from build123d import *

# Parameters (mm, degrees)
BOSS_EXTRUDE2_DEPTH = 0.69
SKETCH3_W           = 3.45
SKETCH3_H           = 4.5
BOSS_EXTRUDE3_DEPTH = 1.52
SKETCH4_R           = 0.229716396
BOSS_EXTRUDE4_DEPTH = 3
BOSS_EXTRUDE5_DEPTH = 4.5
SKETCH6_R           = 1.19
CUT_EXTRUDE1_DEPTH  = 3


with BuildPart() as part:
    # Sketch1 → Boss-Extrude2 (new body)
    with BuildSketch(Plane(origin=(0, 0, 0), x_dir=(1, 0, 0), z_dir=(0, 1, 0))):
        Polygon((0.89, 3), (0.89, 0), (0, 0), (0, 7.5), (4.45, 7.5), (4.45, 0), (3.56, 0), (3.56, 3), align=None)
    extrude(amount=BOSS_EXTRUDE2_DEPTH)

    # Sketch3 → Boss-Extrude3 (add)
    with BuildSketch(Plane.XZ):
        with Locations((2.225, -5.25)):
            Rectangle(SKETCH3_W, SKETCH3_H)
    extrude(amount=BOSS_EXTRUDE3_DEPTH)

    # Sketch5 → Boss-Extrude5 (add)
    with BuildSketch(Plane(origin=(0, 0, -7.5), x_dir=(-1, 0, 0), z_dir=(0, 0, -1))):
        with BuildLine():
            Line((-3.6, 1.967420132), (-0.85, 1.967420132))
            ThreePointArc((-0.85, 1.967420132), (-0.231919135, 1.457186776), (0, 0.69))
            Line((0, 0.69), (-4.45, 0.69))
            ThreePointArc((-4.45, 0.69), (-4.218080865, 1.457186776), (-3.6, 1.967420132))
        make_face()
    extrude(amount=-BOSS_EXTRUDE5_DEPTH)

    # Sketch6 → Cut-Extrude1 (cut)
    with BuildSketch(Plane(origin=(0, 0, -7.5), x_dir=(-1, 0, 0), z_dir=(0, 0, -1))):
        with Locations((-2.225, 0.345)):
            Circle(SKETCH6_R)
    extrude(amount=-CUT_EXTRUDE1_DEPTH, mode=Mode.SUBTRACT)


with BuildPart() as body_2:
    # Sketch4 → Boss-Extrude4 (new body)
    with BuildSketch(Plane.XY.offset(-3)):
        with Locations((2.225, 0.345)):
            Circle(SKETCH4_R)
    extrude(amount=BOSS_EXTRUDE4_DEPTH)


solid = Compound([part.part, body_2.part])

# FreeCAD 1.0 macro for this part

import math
import FreeCAD as App
import Part
import Sketcher
Q = App.Units.Quantity

doc = App.newDocument("Part")
body = doc.addObject("PartDesign::Body", "Body")

# Sketch on XZ plane
sketch1 = body.newObject("Sketcher::SketchObject", "Sketch")
sketch1.AttachmentSupport = (doc.getObject("XZ_Plane"), [""])
sketch1.MapMode = "FlatFace"
sketch1.addGeometry(Part.LineSegment(App.Vector(0.9, 0, 0), App.Vector(0.9, -3, 0)), False)
sketch1.addGeometry(Part.LineSegment(App.Vector(0.9, -3, 0), App.Vector(3.6, -3, 0)), False)
sketch1.addGeometry(Part.LineSegment(App.Vector(3.6, -3, 0), App.Vector(3.6, 0, 0)), False)
sketch1.addGeometry(Part.LineSegment(App.Vector(3.6, 0, 0), App.Vector(4.5, 0, 0)), False)
sketch1.addGeometry(Part.LineSegment(App.Vector(4.5, 0, 0), App.Vector(4.5, -7.5, 0)), False)
sketch1.addGeometry(Part.LineSegment(App.Vector(4.5, -7.5, 0), App.Vector(0, -7.5, 0)), False)
sketch1.addGeometry(Part.LineSegment(App.Vector(0, -7.5, 0), App.Vector(0, 0, 0)), False)
sketch1.addGeometry(Part.LineSegment(App.Vector(0, 0, 0), App.Vector(0.9, 0, 0)), False)
sketch1.addConstraint(Sketcher.Constraint("Coincident", 0, 2, 1, 1))
sketch1.addConstraint(Sketcher.Constraint("Coincident", 1, 2, 2, 1))
sketch1.addConstraint(Sketcher.Constraint("Coincident", 2, 2, 3, 1))
sketch1.addConstraint(Sketcher.Constraint("Coincident", 3, 2, 4, 1))
sketch1.addConstraint(Sketcher.Constraint("Coincident", 4, 2, 5, 1))
sketch1.addConstraint(Sketcher.Constraint("Coincident", 5, 2, 6, 1))
sketch1.addConstraint(Sketcher.Constraint("Coincident", 6, 2, 7, 1))
sketch1.addConstraint(Sketcher.Constraint("Coincident", 7, 2, 0, 1))
sketch1.addConstraint(Sketcher.Constraint("Vertical", 0))
sketch1.addConstraint(Sketcher.Constraint("Horizontal", 1))
sketch1.addConstraint(Sketcher.Constraint("Vertical", 2))
sketch1.addConstraint(Sketcher.Constraint("Horizontal", 3))
sketch1.addConstraint(Sketcher.Constraint("Vertical", 4))
sketch1.addConstraint(Sketcher.Constraint("Horizontal", 5))
sketch1.addConstraint(Sketcher.Constraint("Vertical", 6))
sketch1.addConstraint(Sketcher.Constraint("Horizontal", 7))
sketch1.addConstraint(Sketcher.Constraint("Coincident", 6, 2, -1, 1))
sketch1.addConstraint(Sketcher.Constraint("PointOnObject", 2, 2, -1))
sketch1.addConstraint(Sketcher.Constraint("Equal", 3, 7))
sketch1.addConstraint(Sketcher.Constraint("DistanceY", 0, 2, 0, 1, Q("3 mm")))
sketch1.addConstraint(Sketcher.Constraint("DistanceY", 4, 2, 4, 1, Q("7.5 mm")))
sketch1.addConstraint(Sketcher.Constraint("DistanceX", 1, 1, 1, 2, Q("2.67 mm")))
sketch1.addConstraint(Sketcher.Constraint("DistanceX", 3, 1, 3, 2, Q("0.89 mm")))
pad1 = body.newObject("PartDesign::Pad", "Pad")
pad1.Profile = sketch1
pad1.Length = 0.69
pad1.Reversed = True

# Sketch on XZ plane
sketch2 = body.newObject("Sketcher::SketchObject", "Sketch001")
sketch2.AttachmentSupport = (doc.getObject("XZ_Plane"), [""])
sketch2.MapMode = "FlatFace"
sketch2.addGeometry(Part.LineSegment(App.Vector(0.5, -3, 0), App.Vector(0.5, -7.5, 0)), False)
sketch2.addGeometry(Part.LineSegment(App.Vector(0.5, -7.5, 0), App.Vector(4, -7.5, 0)), False)
sketch2.addGeometry(Part.LineSegment(App.Vector(4, -7.5, 0), App.Vector(4, -3, 0)), False)
sketch2.addGeometry(Part.LineSegment(App.Vector(4, -3, 0), App.Vector(0.5, -3, 0)), False)
sketch2.addConstraint(Sketcher.Constraint("Coincident", 0, 2, 1, 1))
sketch2.addConstraint(Sketcher.Constraint("Coincident", 1, 2, 2, 1))
sketch2.addConstraint(Sketcher.Constraint("Coincident", 2, 2, 3, 1))
sketch2.addConstraint(Sketcher.Constraint("Coincident", 3, 2, 0, 1))
sketch2.addConstraint(Sketcher.Constraint("Vertical", 0))
sketch2.addConstraint(Sketcher.Constraint("Horizontal", 1))
sketch2.addConstraint(Sketcher.Constraint("Vertical", 2))
sketch2.addConstraint(Sketcher.Constraint("Horizontal", 3))
sketch2.addConstraint(Sketcher.Constraint("DistanceY", 0, 2, 0, 1, Q("4.5 mm")))
sketch2.addConstraint(Sketcher.Constraint("DistanceY", 2, 2, -1, 1, Q("3 mm")))
sketch2.addConstraint(Sketcher.Constraint("DistanceX", 1, 1, 1, 2, Q("3.45 mm")))
sketch2.addConstraint(Sketcher.Constraint("DistanceX", -1, 1, 0, 2, Q("0.5 mm")))
pad2 = body.newObject("PartDesign::Pad", "Pad001")
pad2.Profile = sketch2
pad2.Length = 1.52

# Sketch on XY plane
sketch3 = body.newObject("Sketcher::SketchObject", "Sketch002")
sketch3.AttachmentSupport = (doc.getObject("XY_Plane"), [""])
sketch3.MapMode = "FlatFace"
sketch3.AttachmentOffset = App.Placement(App.Vector(0, 0, -7.5), App.Rotation())
sketch3.addGeometry(Part.LineSegment(App.Vector(0.8, 2, 0), App.Vector(3.6, 2, 0)), False)
sketch3.addGeometry(Part.ArcOfCircle(Part.Circle(App.Vector(3.1, 0.7, 0), App.Vector(0, 0, 1), 1.4), math.radians(0), math.radians(67)), False)
sketch3.addGeometry(Part.LineSegment(App.Vector(4.5, 0.7, 0), App.Vector(0, 0.7, 0)), False)
sketch3.addGeometry(Part.ArcOfCircle(Part.Circle(App.Vector(1.4, 0.7, 0), App.Vector(0, 0, 1), 1.4), math.radians(113), math.radians(180)), False)
sketch3.addConstraint(Sketcher.Constraint("Coincident", 0, 2, 1, 2))
sketch3.addConstraint(Sketcher.Constraint("Coincident", 1, 1, 2, 1))
sketch3.addConstraint(Sketcher.Constraint("Coincident", 2, 2, 3, 2))
sketch3.addConstraint(Sketcher.Constraint("Coincident", 3, 1, 0, 1))
sketch3.addConstraint(Sketcher.Constraint("Horizontal", 0))
sketch3.addConstraint(Sketcher.Constraint("Horizontal", 2))
sketch3.addConstraint(Sketcher.Constraint("Equal", 1, 3))
sketch3.addConstraint(Sketcher.Constraint("PointOnObject", 2, 2, -2))
sketch3.addConstraint(Sketcher.Constraint("Horizontal", 1, 3, 3, 3))
sketch3.addConstraint(Sketcher.Constraint("Horizontal", 3, 3, 1, 1))
sketch3.addConstraint(Sketcher.Constraint("DistanceX", 0, 1, 0, 2, Q("2.75 mm")))
sketch3.addConstraint(Sketcher.Constraint("DistanceX", 2, 2, 2, 1, Q("4.45 mm")))
sketch3.addConstraint(Sketcher.Constraint("DistanceY", -1, 1, 1, 3, Q("0.69 mm")))
sketch3.addConstraint(Sketcher.Constraint("Radius", 1, Q("1.384884 mm")))
pad3 = body.newObject("PartDesign::Pad", "Pad002")
pad3.Profile = sketch3
pad3.Length = 4.5

# Sketch on XY plane
sketch4 = body.newObject("Sketcher::SketchObject", "Sketch003")
sketch4.AttachmentSupport = (doc.getObject("XY_Plane"), [""])
sketch4.MapMode = "FlatFace"
sketch4.AttachmentOffset = App.Placement(App.Vector(0, 0, -7.5), App.Rotation())
sketch4.addGeometry(Part.Circle(App.Vector(2.2, 0.3, 0), App.Vector(0, 0, 1), 1.2), False)
sketch4.addConstraint(Sketcher.Constraint("Diameter", 0, Q("2.38 mm")))
sketch4.addConstraint(Sketcher.Constraint("DistanceX", -1, 1, 0, 3, Q("2.225 mm")))
sketch4.addConstraint(Sketcher.Constraint("DistanceY", -1, 1, 0, 3, Q("0.345 mm")))
pocket1 = body.newObject("PartDesign::Pocket", "Pocket")
pocket1.Profile = sketch4
pocket1.Length = 3
pocket1.Reversed = True
body2 = doc.addObject("PartDesign::Body", "Body001")

# Sketch on XY plane
sketch5 = body2.newObject("Sketcher::SketchObject", "Sketch004")
sketch5.AttachmentSupport = (doc.getObject("XY_Plane001"), [""])
sketch5.MapMode = "FlatFace"
sketch5.AttachmentOffset = App.Placement(App.Vector(0, 0, -3), App.Rotation())
sketch5.addGeometry(Part.Circle(App.Vector(2.23, 0.34, 0), App.Vector(0, 0, 1), 0.23), False)
sketch5.addConstraint(Sketcher.Constraint("Diameter", 0, Q("0.459433 mm")))
sketch5.addConstraint(Sketcher.Constraint("DistanceX", -1, 1, 0, 3, Q("2.225 mm")))
sketch5.addConstraint(Sketcher.Constraint("DistanceY", -1, 1, 0, 3, Q("0.345 mm")))
pad4 = body2.newObject("PartDesign::Pad", "Pad003")
pad4.Profile = sketch5
pad4.Length = 3

doc.recompute()
